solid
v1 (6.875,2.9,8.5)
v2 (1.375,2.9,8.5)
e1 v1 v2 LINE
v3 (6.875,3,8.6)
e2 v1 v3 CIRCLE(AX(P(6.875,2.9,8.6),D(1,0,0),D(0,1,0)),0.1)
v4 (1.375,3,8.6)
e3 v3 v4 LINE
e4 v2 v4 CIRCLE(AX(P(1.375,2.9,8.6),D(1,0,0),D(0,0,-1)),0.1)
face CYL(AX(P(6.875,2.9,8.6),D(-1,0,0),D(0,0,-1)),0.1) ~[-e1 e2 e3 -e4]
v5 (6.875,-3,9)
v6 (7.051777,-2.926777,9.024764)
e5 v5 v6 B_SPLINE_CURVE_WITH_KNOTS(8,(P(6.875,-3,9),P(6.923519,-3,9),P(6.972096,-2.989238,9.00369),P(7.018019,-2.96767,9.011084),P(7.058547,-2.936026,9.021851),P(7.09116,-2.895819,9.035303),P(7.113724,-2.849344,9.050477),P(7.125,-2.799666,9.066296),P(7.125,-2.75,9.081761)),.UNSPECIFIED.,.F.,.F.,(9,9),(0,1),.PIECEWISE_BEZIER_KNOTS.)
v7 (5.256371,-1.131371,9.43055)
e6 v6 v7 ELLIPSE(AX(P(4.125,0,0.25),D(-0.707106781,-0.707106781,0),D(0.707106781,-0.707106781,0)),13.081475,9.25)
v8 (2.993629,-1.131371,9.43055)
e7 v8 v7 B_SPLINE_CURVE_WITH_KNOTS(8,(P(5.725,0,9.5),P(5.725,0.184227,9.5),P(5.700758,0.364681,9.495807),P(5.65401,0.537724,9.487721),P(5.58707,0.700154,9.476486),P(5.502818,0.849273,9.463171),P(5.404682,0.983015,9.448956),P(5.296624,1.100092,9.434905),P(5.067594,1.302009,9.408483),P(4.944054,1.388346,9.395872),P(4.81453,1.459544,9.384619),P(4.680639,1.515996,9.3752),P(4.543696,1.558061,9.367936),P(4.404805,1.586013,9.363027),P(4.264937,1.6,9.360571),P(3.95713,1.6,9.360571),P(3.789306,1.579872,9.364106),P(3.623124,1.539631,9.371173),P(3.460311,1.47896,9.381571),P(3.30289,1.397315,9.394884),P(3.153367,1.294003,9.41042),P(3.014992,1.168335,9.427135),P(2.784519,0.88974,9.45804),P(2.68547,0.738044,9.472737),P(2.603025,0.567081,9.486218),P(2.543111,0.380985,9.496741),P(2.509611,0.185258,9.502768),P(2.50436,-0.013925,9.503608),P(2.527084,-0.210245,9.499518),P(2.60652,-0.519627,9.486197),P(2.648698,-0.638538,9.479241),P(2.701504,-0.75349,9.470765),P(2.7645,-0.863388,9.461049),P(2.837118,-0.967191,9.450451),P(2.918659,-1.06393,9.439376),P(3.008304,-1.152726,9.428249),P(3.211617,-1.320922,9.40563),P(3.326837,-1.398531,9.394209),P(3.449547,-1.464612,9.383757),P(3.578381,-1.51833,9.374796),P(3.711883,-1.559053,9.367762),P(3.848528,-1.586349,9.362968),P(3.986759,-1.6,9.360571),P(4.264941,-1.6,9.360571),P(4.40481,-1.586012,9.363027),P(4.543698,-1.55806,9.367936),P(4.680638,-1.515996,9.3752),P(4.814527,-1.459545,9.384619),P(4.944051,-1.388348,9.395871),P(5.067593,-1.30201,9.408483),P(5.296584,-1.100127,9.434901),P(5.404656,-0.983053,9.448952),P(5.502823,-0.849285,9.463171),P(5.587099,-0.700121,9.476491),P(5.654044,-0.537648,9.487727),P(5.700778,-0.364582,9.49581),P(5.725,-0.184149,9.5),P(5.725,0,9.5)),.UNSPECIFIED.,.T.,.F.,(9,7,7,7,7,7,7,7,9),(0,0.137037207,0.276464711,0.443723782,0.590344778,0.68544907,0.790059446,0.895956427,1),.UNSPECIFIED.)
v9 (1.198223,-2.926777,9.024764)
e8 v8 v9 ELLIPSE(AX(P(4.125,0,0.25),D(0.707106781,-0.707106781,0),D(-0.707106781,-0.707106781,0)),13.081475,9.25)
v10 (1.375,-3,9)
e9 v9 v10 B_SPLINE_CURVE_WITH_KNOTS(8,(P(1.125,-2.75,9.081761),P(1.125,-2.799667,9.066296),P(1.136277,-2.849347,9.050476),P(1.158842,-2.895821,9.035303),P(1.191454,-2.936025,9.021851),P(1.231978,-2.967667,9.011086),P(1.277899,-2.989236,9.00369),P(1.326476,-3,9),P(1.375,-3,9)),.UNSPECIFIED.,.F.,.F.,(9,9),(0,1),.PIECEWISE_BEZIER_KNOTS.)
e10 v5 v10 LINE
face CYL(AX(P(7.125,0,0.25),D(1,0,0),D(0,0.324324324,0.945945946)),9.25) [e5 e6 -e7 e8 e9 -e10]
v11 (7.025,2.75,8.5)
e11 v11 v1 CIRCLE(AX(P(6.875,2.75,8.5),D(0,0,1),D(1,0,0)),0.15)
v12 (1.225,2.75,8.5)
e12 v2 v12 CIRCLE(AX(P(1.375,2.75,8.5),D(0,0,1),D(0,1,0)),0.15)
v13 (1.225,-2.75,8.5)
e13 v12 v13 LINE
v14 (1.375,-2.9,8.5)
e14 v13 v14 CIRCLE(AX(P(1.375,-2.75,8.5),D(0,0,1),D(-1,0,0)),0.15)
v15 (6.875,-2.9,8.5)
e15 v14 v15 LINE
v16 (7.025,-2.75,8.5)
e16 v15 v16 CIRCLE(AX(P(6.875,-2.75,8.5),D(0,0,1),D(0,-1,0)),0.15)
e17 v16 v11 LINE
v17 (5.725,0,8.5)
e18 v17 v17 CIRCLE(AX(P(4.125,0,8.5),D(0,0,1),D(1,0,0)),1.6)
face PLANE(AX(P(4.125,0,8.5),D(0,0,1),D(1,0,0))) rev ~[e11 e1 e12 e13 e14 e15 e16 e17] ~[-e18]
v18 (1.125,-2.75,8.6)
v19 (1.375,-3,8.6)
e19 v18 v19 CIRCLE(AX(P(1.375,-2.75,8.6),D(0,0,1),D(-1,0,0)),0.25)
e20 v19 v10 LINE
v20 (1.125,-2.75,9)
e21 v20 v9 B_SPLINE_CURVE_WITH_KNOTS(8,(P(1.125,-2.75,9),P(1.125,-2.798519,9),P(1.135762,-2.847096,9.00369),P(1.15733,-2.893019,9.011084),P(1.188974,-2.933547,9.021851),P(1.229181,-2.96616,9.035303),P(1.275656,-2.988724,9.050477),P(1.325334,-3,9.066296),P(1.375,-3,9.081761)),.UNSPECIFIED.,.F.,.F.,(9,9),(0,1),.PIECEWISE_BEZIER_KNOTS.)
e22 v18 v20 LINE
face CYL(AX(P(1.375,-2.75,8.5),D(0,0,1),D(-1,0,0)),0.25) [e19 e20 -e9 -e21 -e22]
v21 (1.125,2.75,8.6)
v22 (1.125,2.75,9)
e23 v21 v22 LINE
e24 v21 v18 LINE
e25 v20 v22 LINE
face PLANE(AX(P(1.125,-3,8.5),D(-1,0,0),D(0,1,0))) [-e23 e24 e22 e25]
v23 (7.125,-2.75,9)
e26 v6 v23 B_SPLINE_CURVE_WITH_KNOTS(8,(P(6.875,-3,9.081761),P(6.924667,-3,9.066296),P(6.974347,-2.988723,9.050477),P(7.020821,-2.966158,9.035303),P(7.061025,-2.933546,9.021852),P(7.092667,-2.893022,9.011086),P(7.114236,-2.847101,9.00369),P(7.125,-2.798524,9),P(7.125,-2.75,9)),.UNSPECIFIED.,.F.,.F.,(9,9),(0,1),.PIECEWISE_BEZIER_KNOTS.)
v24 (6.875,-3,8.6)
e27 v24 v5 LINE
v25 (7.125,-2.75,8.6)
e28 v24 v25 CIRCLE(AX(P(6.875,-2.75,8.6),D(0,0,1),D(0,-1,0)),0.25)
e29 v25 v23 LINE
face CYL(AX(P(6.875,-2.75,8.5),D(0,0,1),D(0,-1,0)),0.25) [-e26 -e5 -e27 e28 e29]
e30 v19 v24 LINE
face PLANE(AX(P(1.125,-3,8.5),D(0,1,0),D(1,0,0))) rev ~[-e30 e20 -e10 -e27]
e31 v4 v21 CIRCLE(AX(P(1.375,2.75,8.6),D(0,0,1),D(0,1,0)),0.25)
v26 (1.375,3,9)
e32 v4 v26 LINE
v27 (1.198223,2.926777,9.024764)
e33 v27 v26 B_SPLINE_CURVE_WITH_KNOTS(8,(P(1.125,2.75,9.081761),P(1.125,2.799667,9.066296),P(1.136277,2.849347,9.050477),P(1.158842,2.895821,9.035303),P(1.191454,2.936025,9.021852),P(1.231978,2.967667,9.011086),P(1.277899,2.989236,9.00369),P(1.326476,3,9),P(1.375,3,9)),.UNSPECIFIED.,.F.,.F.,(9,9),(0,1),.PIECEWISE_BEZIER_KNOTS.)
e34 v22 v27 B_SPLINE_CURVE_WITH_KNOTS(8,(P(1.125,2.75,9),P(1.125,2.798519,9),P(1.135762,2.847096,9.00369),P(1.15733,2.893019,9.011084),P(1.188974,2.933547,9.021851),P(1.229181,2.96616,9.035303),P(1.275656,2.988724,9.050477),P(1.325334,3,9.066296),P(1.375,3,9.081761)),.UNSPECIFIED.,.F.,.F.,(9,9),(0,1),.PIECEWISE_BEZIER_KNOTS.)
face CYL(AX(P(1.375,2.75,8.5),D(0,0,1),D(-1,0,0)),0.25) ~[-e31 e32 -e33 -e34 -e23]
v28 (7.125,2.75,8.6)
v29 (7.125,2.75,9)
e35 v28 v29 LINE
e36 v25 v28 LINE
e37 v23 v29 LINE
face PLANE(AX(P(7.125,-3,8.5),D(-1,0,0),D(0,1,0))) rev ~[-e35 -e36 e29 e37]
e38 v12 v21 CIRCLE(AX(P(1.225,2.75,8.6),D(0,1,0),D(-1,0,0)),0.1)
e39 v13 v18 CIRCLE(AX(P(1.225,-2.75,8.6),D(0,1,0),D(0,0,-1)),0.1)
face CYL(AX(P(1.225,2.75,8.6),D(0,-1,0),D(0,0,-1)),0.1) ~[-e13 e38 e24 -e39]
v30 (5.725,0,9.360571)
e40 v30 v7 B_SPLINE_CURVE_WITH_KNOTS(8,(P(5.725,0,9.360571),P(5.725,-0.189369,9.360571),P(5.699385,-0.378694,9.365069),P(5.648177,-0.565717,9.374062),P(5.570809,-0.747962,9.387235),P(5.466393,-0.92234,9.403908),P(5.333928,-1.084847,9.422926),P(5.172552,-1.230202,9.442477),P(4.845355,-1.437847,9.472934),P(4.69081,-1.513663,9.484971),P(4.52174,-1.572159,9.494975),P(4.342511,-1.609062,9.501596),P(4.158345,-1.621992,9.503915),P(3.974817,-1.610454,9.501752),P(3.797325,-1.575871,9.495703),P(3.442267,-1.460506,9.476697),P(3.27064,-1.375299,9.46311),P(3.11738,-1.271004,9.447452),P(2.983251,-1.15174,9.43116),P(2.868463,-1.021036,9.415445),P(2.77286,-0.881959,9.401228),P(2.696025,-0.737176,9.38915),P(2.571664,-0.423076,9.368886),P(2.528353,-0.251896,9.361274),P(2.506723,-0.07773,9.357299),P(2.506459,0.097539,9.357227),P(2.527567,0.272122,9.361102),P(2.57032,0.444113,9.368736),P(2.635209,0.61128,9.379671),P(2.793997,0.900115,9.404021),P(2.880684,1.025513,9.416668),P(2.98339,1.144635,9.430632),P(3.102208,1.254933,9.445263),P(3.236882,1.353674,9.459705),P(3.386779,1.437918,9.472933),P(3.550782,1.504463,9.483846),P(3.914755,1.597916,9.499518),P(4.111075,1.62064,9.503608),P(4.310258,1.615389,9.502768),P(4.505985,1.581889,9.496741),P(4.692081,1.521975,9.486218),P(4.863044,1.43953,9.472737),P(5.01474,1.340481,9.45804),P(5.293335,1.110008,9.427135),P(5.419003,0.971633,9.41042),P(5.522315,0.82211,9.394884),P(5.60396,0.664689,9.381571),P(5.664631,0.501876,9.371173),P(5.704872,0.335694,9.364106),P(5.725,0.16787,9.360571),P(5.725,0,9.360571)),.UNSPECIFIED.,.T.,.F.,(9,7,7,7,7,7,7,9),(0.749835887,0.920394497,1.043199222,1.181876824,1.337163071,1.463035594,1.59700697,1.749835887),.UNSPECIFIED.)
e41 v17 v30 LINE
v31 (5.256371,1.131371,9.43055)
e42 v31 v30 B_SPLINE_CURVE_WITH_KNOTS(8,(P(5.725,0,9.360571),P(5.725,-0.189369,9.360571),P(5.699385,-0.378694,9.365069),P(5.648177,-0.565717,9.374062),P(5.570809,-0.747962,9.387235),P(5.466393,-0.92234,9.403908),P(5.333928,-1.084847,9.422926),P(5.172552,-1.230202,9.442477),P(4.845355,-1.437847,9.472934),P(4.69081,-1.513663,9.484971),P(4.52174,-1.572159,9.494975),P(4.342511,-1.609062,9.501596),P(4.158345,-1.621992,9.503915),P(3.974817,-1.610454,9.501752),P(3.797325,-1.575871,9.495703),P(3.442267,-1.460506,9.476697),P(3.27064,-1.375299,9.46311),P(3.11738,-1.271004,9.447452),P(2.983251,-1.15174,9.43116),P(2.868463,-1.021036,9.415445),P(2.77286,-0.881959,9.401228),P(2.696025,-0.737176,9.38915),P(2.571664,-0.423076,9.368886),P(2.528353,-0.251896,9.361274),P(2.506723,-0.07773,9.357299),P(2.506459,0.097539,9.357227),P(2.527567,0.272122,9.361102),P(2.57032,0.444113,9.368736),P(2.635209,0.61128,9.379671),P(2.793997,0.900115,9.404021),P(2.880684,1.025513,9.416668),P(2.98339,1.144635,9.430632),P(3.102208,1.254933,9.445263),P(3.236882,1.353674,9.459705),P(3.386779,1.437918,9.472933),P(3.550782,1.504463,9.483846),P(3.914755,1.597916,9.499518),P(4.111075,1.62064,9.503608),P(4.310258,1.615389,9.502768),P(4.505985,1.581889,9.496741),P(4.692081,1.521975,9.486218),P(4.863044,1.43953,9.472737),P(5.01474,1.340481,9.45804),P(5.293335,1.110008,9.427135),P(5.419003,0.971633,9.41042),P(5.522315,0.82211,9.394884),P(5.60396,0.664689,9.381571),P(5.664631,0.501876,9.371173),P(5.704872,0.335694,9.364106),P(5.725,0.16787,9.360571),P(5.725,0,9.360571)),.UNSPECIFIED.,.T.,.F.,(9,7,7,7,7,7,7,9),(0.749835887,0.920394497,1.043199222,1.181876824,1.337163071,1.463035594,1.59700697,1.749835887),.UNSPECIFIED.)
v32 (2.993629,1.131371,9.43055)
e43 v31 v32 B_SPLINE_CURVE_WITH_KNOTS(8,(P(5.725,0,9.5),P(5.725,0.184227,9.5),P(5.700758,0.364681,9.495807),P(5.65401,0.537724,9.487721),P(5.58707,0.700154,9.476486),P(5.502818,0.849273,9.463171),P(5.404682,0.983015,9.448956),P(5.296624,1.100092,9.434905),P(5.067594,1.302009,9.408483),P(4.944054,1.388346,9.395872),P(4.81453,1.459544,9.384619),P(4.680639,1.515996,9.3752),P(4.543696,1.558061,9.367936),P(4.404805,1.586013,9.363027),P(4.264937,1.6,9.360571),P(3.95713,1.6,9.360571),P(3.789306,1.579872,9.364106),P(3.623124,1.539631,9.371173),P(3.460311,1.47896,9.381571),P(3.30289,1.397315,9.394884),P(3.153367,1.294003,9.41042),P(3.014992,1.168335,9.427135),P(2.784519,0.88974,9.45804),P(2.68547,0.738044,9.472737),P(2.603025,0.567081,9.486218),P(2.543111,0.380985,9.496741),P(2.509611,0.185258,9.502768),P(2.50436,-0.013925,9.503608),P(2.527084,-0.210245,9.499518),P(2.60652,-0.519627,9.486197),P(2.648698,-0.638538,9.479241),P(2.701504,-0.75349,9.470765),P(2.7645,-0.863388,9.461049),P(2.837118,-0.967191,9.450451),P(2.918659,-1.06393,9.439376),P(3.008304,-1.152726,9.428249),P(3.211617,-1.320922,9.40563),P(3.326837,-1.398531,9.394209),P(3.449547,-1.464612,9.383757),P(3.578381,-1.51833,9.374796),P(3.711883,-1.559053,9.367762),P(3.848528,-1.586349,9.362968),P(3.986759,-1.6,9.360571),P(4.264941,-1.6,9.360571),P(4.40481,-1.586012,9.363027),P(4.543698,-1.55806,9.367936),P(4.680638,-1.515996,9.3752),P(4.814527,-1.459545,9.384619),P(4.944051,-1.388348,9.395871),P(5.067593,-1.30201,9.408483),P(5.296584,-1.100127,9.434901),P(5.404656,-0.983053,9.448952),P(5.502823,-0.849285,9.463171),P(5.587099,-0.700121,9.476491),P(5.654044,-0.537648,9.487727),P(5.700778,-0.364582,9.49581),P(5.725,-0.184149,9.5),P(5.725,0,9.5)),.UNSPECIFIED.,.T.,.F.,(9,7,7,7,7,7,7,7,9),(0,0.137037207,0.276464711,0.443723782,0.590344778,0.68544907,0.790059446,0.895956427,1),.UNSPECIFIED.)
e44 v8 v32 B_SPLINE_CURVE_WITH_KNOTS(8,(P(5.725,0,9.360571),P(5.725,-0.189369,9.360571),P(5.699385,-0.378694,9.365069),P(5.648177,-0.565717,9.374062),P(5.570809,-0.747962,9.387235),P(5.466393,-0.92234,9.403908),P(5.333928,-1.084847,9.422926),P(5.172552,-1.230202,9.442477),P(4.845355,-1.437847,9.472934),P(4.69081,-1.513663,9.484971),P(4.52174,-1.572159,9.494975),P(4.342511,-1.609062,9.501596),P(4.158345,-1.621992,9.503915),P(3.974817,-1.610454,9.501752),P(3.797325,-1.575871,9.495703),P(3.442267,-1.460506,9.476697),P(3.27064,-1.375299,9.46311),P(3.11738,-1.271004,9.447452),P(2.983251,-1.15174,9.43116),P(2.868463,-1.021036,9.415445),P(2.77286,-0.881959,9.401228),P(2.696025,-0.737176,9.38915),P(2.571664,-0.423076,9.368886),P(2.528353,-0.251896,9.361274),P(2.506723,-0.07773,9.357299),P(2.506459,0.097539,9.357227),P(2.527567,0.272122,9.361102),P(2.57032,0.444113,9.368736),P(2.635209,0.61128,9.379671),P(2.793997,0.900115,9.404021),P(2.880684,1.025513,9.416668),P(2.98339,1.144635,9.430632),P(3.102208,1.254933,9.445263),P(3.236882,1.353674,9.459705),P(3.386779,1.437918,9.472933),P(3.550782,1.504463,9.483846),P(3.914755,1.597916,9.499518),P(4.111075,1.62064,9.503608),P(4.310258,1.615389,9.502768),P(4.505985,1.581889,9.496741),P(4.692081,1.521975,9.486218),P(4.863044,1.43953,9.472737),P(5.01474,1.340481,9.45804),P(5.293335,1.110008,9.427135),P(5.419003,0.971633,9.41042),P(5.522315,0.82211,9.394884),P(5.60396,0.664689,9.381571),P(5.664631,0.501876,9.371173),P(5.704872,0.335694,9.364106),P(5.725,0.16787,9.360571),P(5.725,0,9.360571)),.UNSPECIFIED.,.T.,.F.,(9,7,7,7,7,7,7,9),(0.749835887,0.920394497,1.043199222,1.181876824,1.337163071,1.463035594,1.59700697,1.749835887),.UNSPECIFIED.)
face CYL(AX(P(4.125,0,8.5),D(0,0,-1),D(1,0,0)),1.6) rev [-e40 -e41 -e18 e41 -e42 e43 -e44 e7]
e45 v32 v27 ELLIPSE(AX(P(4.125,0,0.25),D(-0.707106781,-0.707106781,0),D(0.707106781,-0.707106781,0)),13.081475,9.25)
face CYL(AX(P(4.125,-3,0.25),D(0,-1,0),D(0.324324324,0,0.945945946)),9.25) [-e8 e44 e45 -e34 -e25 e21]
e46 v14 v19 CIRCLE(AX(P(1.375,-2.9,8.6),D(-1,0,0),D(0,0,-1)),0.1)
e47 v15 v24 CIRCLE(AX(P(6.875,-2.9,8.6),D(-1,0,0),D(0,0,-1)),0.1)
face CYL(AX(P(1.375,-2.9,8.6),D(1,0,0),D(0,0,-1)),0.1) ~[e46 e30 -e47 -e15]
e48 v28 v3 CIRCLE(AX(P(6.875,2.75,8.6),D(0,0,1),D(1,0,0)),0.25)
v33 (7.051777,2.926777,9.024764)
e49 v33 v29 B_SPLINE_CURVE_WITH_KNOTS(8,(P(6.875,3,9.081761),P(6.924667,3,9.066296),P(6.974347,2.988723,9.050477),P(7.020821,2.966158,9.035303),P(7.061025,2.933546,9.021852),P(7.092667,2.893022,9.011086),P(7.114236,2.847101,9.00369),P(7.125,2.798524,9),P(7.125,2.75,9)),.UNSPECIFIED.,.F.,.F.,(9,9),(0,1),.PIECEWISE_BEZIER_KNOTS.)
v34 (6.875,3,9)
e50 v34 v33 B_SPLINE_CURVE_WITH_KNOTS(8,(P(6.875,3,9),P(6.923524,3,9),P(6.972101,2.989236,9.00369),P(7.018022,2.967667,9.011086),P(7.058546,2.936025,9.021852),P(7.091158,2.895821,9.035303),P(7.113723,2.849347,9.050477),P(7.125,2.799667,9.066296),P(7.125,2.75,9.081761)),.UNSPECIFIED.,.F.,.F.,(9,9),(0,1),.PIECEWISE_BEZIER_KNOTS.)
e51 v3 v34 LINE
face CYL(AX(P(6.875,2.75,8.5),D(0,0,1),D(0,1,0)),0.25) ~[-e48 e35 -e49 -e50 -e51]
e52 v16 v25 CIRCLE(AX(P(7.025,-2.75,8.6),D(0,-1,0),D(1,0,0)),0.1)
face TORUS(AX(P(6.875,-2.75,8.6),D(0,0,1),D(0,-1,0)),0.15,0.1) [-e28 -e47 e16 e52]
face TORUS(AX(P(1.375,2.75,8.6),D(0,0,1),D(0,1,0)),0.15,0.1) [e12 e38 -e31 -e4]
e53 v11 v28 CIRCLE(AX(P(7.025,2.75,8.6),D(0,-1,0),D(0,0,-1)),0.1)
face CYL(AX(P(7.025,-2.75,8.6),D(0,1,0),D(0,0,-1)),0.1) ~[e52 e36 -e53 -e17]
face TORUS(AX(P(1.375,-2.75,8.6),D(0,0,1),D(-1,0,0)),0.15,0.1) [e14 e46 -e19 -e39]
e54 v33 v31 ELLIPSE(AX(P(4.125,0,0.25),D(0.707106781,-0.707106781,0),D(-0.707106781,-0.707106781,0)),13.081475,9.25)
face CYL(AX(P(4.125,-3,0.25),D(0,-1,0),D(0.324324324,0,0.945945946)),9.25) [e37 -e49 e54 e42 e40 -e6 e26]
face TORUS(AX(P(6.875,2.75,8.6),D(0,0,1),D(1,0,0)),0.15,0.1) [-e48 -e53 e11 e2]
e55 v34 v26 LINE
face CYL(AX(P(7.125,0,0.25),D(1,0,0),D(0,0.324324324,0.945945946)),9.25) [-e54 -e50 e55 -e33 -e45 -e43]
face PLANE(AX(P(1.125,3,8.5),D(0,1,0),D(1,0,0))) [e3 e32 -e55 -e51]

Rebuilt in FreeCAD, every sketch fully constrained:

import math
import FreeCAD as App
import Part
import Sketcher

V = App.Vector
Q = App.Units.Quantity


def edges_at(feature, points):
    """Names of the edges that pass closest to the given points."""
    edges = feature.Shape.Edges
    near = lambda p: min(range(len(edges)), key=lambda i: edges[i].distToShape(Part.Vertex(*p))[0])
    return sorted({f"Edge{near(p) + 1}" for p in points})

doc = App.newDocument("Part")
body = doc.addObject("PartDesign::Body", "Body")

# Sketch on XY plane
sketch1 = body.newObject("Sketcher::SketchObject", "Sketch")
sketch1.AttachmentSupport = (doc.getObject("XY_Plane"), [""])
sketch1.MapMode = "FlatFace"
sketch1.AttachmentOffset = App.Placement(V(0, 0, 8.5), App.Rotation())
sketch1.addGeometry([
    Part.LineSegment(V(1.125, 3, 0), V(1.125, -3, 0)),  # 0
    Part.LineSegment(V(1.125, -3, 0), V(7.125, -3, 0)),  # 1
    Part.LineSegment(V(7.125, -3, 0), V(7.125, 3, 0)),  # 2
    Part.LineSegment(V(7.125, 3, 0), V(1.125, 3, 0)),  # 3
    Part.Circle(V(4.125, 0, 0), V(0, 0, 1), 1.6),  # 4
], False)
sketch1.addConstraint([
    Sketcher.Constraint("Coincident", 0, 2, 1, 1),
    Sketcher.Constraint("Coincident", 1, 2, 2, 1),
    Sketcher.Constraint("Coincident", 2, 2, 3, 1),
    Sketcher.Constraint("Coincident", 3, 2, 0, 1),
    Sketcher.Constraint("Vertical", 0),
    Sketcher.Constraint("Horizontal", 1),
    Sketcher.Constraint("Vertical", 2),
    Sketcher.Constraint("Horizontal", 3),
    Sketcher.Constraint("PointOnObject", 4, 3, -1),
    Sketcher.Constraint("Equal", 3, 0),
    Sketcher.Constraint("Diameter", 4, Q("3.2 mm")),
    Sketcher.Constraint("DistanceX", 1, 1, 1, 2, Q("6 mm")),
    Sketcher.Constraint("DistanceY", 0, 2, -1, 1, Q("3 mm")),
    Sketcher.Constraint("DistanceX", 0, 2, 4, 3, Q("3 mm")),
    Sketcher.Constraint("DistanceX", -1, 1, 4, 3, Q("4.125 mm")),
])
pad1 = body.newObject("PartDesign::Pad", "Pad")
pad1.Profile = sketch1
pad1.Length = 1

# Sketch on XZ plane
sketch2 = body.newObject("Sketcher::SketchObject", "Sketch001")
sketch2.AttachmentSupport = (doc.getObject("XZ_Plane"), [""])
sketch2.MapMode = "FlatFace"
sketch2.AttachmentOffset = App.Placement(V(0, 0, 3), App.Rotation())
sketch2.addGeometry([
    Part.ArcOfCircle(Part.Circle(V(4.125, 0.25, 0), V(0, 0, 1), 9.25), math.radians(71.075356), math.radians(108.924644)),  # 0
    Part.LineSegment(V(7.125, 9, 0), V(7.94919, 9, 0)),  # 1
    Part.LineSegment(V(7.94919, 9, 0), V(7.94919, 10.79429, 0)),  # 2
    Part.LineSegment(V(7.94919, 10.79429, 0), V(0.30081, 10.79429, 0)),  # 3
    Part.LineSegment(V(0.30081, 10.79429, 0), V(0.30081, 9, 0)),  # 4
    Part.LineSegment(V(0.30081, 9, 0), V(1.125, 9, 0)),  # 5
], False)
sketch2.addConstraint([
    Sketcher.Constraint("Coincident", 0, 1, 1, 1),
    Sketcher.Constraint("Coincident", 1, 2, 2, 1),
    Sketcher.Constraint("Coincident", 2, 2, 3, 1),
    Sketcher.Constraint("Coincident", 3, 2, 4, 1),
    Sketcher.Constraint("Coincident", 4, 2, 5, 1),
    Sketcher.Constraint("Coincident", 5, 2, 0, 2),
    Sketcher.Constraint("Horizontal", 1),
    Sketcher.Constraint("Vertical", 2),
    Sketcher.Constraint("Horizontal", 3),
    Sketcher.Constraint("Vertical", 4),
    Sketcher.Constraint("Horizontal", 5),
    Sketcher.Constraint("Horizontal", 1, 2, 4, 2),
    Sketcher.Constraint("Equal", 1, 5),
    Sketcher.Constraint("Radius", 0, Q("9.25 mm")),
    Sketcher.Constraint("DistanceY", -1, 1, 0, 1, Q("9 mm")),
    Sketcher.Constraint("DistanceX", 0, 3, 0, 1, Q("3 mm")),
    Sketcher.Constraint("DistanceX", -1, 1, 0, 3, Q("4.125 mm")),
    Sketcher.Constraint("DistanceX", 1, 1, 1, 2, Q("0.82419 mm")),
    Sketcher.Constraint("DistanceY", 2, 1, 2, 2, Q("1.79429 mm")),
])
pocket1 = body.newObject("PartDesign::Pocket", "Pocket")
pocket1.Profile = sketch2
pocket1.Type = "ThroughAll"

# Sketch on YZ plane
sketch3 = body.newObject("Sketcher::SketchObject", "Sketch002")
sketch3.AttachmentSupport = (doc.getObject("YZ_Plane"), [""])
sketch3.MapMode = "FlatFace"
sketch3.AttachmentOffset = App.Placement(V(0, 0, 7.125), App.Rotation())
sketch3.addGeometry([
    Part.ArcOfCircle(Part.Circle(V(0, 0.25, 0), V(0, 0, 1), 9.25), math.radians(71.075356), math.radians(108.924644)),  # 0
    Part.LineSegment(V(3, 9, 0), V(3.52138, 9, 0)),  # 1
    Part.LineSegment(V(3.52138, 9, 0), V(3.52138, 9.995392, 0)),  # 2
    Part.LineSegment(V(3.52138, 9.995392, 0), V(-3.52138, 9.995392, 0)),  # 3
    Part.LineSegment(V(-3.52138, 9.995392, 0), V(-3.52138, 9, 0)),  # 4
    Part.LineSegment(V(-3.52138, 9, 0), V(-3, 9, 0)),  # 5
], False)
sketch3.addConstraint([
    Sketcher.Constraint("Coincident", 0, 1, 1, 1),
    Sketcher.Constraint("Coincident", 1, 2, 2, 1),
    Sketcher.Constraint("Coincident", 2, 2, 3, 1),
    Sketcher.Constraint("Coincident", 3, 2, 4, 1),
    Sketcher.Constraint("Coincident", 4, 2, 5, 1),
    Sketcher.Constraint("Coincident", 5, 2, 0, 2),
    Sketcher.Constraint("Horizontal", 1),
    Sketcher.Constraint("Vertical", 2),
    Sketcher.Constraint("Horizontal", 3),
    Sketcher.Constraint("Vertical", 4),
    Sketcher.Constraint("Horizontal", 5),
    Sketcher.Constraint("Symmetric", 1, 2, 4, 2, -2),
    Sketcher.Constraint("PointOnObject", 0, 3, -2),
    Sketcher.Constraint("Radius", 0, Q("9.25 mm")),
    Sketcher.Constraint("DistanceX", -1, 1, 0, 1, Q("3 mm")),
    Sketcher.Constraint("DistanceY", -1, 1, 0, 1, Q("9 mm")),
    Sketcher.Constraint("DistanceX", 1, 1, 1, 2, Q("0.52138 mm")),
    Sketcher.Constraint("DistanceY", 2, 1, 2, 2, Q("0.995392 mm")),
])
pocket2 = body.newObject("PartDesign::Pocket", "Pocket001")
pocket2.Profile = sketch3
pocket2.Length = 6
doc.recompute()

fillet = body.newObject("PartDesign::Fillet", "Fillet")
fillet.Base = (pocket2, edges_at(pocket2, [
    (7.125, -3, 8.75),
    (7.125, 3, 8.75),
    (1.125, 3, 8.75),
    (1.125, -3, 8.75),
]))
fillet.Radius = 0.25
doc.recompute()

fillet2 = body.newObject("PartDesign::Fillet", "Fillet001")
fillet2.Base = (fillet, edges_at(fillet, [(4.125, -3, 8.5)]))
fillet2.Radius = 0.1

doc.recompute()
